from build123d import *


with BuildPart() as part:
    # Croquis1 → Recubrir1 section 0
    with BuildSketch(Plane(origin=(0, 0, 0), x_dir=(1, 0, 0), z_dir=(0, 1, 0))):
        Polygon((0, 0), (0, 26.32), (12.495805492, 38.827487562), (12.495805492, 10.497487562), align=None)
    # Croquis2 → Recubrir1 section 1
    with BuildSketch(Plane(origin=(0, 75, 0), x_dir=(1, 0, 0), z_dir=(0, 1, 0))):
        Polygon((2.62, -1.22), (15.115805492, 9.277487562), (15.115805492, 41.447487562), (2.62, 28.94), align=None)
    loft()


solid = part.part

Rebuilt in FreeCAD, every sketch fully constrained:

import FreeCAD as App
import Part
import Sketcher

V = App.Vector


def add_polygon(sketch, points):
    """Adds a closed chain of lines whose ends are joined by coincident constraints."""
    first, n = sketch.GeometryCount, len(points)
    for a, b in zip(points, points[1:] + points[:1]):
        sketch.addGeometry(Part.LineSegment(App.Vector(*a, 0), App.Vector(*b, 0)), False)
    for i in range(n):
        sketch.addConstraint(Sketcher.Constraint("Coincident", first + i, 2, first + (i + 1) % n, 1))

doc = App.newDocument("Part")
body = doc.addObject("PartDesign::Body", "Body")

# Sketch on XZ plane
sketch1 = body.newObject("Sketcher::SketchObject", "Sketch")
sketch1.AttachmentSupport = (doc.getObject("XZ_Plane"), [""])
sketch1.MapMode = "FlatFace"
add_polygon(sketch1, [(0, -26.32), (0, 0), (12.495805, -10.497488), (12.495805, -38.827488)])  # lines 0-3
sketch1.addConstraint(Sketcher.Constraint("Vertical", 0))
sketch1.addConstraint(Sketcher.Constraint("Vertical", 2))
sketch1.addConstraint(Sketcher.Constraint("Coincident", 0, 2, -1, 1))
sketch1.addConstraint(Sketcher.Constraint("DistanceY", 0, 1, 0, 2, 26.32))
sketch1.addConstraint(Sketcher.Constraint("DistanceY", 2, 2, 2, 1, 28.33))
sketch1.addConstraint(Sketcher.Constraint("Distance", 1, 16.32))
sketch1.addConstraint(Sketcher.Constraint("Distance", 3, 17.68))

# Sketch on XZ plane
sketch2 = body.newObject("Sketcher::SketchObject", "Sketch001")
sketch2.AttachmentSupport = (doc.getObject("XZ_Plane"), [""])
sketch2.MapMode = "FlatFace"
sketch2.AttachmentOffset = App.Placement(V(0, 0, -75), App.Rotation())
add_polygon(sketch2, [(2.62, 1.22), (15.115805, -9.277488), (15.115805, -41.447488), (2.62, -28.94)])  # lines 0-3
sketch2.addConstraint(Sketcher.Constraint("Vertical", 1))
sketch2.addConstraint(Sketcher.Constraint("Vertical", 3))
sketch2.addConstraint(Sketcher.Constraint("DistanceY", 1, 2, 1, 1, 32.17))
sketch2.addConstraint(Sketcher.Constraint("DistanceY", 3, 1, 3, 2, 30.16))
sketch2.addConstraint(Sketcher.Constraint("Distance", 0, 16.32))
sketch2.addConstraint(Sketcher.Constraint("Distance", 2, 17.68))
sketch2.addConstraint(Sketcher.Constraint("DistanceX", -1, 1, 2, 2, 2.62))
sketch2.addConstraint(Sketcher.Constraint("DistanceY", 2, 2, -1, 1, 28.94))

additiveloft = body.newObject("PartDesign::AdditiveLoft", "AdditiveLoft")
additiveloft.Profile = sketch1
additiveloft.Sections = [sketch2]

doc.recompute()
